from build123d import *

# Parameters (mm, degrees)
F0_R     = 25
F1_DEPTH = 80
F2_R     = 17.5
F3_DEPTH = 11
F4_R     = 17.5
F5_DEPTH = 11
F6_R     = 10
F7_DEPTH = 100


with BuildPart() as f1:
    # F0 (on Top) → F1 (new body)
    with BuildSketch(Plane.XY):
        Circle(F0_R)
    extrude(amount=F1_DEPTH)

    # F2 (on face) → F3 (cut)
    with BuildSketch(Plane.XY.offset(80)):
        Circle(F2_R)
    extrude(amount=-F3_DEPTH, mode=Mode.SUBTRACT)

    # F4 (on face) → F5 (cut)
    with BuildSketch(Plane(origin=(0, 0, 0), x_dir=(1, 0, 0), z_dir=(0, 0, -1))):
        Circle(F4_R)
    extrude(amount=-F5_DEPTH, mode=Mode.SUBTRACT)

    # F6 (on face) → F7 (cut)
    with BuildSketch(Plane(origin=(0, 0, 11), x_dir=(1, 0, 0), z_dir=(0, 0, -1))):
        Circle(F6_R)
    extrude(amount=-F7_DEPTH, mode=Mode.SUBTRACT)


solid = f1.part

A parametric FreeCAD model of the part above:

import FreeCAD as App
import Part
import Sketcher

V = App.Vector
Q = App.Units.Quantity

doc = App.newDocument("Part")
body = doc.addObject("PartDesign::Body", "Body")

sketch1 = body.newObject("Sketcher::SketchObject", "Sketch")
sketch1.AttachmentSupport = (doc.getObject("XY_Plane"), [""])
sketch1.MapMode = "FlatFace"
sketch1.addGeometry(Part.Circle(V(0, 0, 0), V(0, 0, 1), 25), False)
sketch1.addConstraint(Sketcher.Constraint("Coincident", 0, 3, -1, 1))
sketch1.addConstraint(Sketcher.Constraint("Diameter", 0, Q("50 mm")))
pad1 = body.newObject("PartDesign::Pad", "Pad")
pad1.Profile = sketch1
pad1.Length = 80

sketch2 = body.newObject("Sketcher::SketchObject", "Sketch001")
sketch2.AttachmentSupport = (doc.getObject("XY_Plane"), [""])
sketch2.MapMode = "FlatFace"
sketch2.AttachmentOffset = App.Placement(V(0, 0, 80), App.Rotation())
sketch2.addGeometry(Part.Circle(V(0, 0, 0), V(0, 0, 1), 18), False)
sketch2.addConstraint(Sketcher.Constraint("Coincident", 0, 3, -1, 1))
sketch2.addConstraint(Sketcher.Constraint("Diameter", 0, Q("35 mm")))
pocket1 = body.newObject("PartDesign::Pocket", "Pocket")
pocket1.Profile = sketch2
pocket1.Length = 11

sketch3 = body.newObject("Sketcher::SketchObject", "Sketch002")
sketch3.AttachmentSupport = (doc.getObject("XY_Plane"), [""])
sketch3.MapMode = "FlatFace"
sketch3.addGeometry(Part.Circle(V(0, 0, 0), V(0, 0, 1), 18), False)
sketch3.addConstraint(Sketcher.Constraint("Coincident", 0, 3, -1, 1))
sketch3.addConstraint(Sketcher.Constraint("Diameter", 0, Q("35 mm")))
pocket2 = body.newObject("PartDesign::Pocket", "Pocket001")
pocket2.Profile = sketch3
pocket2.Length = 11
pocket2.Reversed = True

sketch4 = body.newObject("Sketcher::SketchObject", "Sketch003")
sketch4.AttachmentSupport = (doc.getObject("XY_Plane"), [""])
sketch4.MapMode = "FlatFace"
sketch4.AttachmentOffset = App.Placement(V(0, 0, 11), App.Rotation())
sketch4.addGeometry(Part.Circle(V(0, 0, 0), V(0, 0, 1), 10), False)
sketch4.addConstraint(Sketcher.Constraint("Coincident", 0, 3, -1, 1))
sketch4.addConstraint(Sketcher.Constraint("Diameter", 0, Q("20 mm")))
pocket3 = body.newObject("PartDesign::Pocket", "Pocket002")
pocket3.Profile = sketch4
pocket3.Length = 100
pocket3.Reversed = True

doc.recompute()
